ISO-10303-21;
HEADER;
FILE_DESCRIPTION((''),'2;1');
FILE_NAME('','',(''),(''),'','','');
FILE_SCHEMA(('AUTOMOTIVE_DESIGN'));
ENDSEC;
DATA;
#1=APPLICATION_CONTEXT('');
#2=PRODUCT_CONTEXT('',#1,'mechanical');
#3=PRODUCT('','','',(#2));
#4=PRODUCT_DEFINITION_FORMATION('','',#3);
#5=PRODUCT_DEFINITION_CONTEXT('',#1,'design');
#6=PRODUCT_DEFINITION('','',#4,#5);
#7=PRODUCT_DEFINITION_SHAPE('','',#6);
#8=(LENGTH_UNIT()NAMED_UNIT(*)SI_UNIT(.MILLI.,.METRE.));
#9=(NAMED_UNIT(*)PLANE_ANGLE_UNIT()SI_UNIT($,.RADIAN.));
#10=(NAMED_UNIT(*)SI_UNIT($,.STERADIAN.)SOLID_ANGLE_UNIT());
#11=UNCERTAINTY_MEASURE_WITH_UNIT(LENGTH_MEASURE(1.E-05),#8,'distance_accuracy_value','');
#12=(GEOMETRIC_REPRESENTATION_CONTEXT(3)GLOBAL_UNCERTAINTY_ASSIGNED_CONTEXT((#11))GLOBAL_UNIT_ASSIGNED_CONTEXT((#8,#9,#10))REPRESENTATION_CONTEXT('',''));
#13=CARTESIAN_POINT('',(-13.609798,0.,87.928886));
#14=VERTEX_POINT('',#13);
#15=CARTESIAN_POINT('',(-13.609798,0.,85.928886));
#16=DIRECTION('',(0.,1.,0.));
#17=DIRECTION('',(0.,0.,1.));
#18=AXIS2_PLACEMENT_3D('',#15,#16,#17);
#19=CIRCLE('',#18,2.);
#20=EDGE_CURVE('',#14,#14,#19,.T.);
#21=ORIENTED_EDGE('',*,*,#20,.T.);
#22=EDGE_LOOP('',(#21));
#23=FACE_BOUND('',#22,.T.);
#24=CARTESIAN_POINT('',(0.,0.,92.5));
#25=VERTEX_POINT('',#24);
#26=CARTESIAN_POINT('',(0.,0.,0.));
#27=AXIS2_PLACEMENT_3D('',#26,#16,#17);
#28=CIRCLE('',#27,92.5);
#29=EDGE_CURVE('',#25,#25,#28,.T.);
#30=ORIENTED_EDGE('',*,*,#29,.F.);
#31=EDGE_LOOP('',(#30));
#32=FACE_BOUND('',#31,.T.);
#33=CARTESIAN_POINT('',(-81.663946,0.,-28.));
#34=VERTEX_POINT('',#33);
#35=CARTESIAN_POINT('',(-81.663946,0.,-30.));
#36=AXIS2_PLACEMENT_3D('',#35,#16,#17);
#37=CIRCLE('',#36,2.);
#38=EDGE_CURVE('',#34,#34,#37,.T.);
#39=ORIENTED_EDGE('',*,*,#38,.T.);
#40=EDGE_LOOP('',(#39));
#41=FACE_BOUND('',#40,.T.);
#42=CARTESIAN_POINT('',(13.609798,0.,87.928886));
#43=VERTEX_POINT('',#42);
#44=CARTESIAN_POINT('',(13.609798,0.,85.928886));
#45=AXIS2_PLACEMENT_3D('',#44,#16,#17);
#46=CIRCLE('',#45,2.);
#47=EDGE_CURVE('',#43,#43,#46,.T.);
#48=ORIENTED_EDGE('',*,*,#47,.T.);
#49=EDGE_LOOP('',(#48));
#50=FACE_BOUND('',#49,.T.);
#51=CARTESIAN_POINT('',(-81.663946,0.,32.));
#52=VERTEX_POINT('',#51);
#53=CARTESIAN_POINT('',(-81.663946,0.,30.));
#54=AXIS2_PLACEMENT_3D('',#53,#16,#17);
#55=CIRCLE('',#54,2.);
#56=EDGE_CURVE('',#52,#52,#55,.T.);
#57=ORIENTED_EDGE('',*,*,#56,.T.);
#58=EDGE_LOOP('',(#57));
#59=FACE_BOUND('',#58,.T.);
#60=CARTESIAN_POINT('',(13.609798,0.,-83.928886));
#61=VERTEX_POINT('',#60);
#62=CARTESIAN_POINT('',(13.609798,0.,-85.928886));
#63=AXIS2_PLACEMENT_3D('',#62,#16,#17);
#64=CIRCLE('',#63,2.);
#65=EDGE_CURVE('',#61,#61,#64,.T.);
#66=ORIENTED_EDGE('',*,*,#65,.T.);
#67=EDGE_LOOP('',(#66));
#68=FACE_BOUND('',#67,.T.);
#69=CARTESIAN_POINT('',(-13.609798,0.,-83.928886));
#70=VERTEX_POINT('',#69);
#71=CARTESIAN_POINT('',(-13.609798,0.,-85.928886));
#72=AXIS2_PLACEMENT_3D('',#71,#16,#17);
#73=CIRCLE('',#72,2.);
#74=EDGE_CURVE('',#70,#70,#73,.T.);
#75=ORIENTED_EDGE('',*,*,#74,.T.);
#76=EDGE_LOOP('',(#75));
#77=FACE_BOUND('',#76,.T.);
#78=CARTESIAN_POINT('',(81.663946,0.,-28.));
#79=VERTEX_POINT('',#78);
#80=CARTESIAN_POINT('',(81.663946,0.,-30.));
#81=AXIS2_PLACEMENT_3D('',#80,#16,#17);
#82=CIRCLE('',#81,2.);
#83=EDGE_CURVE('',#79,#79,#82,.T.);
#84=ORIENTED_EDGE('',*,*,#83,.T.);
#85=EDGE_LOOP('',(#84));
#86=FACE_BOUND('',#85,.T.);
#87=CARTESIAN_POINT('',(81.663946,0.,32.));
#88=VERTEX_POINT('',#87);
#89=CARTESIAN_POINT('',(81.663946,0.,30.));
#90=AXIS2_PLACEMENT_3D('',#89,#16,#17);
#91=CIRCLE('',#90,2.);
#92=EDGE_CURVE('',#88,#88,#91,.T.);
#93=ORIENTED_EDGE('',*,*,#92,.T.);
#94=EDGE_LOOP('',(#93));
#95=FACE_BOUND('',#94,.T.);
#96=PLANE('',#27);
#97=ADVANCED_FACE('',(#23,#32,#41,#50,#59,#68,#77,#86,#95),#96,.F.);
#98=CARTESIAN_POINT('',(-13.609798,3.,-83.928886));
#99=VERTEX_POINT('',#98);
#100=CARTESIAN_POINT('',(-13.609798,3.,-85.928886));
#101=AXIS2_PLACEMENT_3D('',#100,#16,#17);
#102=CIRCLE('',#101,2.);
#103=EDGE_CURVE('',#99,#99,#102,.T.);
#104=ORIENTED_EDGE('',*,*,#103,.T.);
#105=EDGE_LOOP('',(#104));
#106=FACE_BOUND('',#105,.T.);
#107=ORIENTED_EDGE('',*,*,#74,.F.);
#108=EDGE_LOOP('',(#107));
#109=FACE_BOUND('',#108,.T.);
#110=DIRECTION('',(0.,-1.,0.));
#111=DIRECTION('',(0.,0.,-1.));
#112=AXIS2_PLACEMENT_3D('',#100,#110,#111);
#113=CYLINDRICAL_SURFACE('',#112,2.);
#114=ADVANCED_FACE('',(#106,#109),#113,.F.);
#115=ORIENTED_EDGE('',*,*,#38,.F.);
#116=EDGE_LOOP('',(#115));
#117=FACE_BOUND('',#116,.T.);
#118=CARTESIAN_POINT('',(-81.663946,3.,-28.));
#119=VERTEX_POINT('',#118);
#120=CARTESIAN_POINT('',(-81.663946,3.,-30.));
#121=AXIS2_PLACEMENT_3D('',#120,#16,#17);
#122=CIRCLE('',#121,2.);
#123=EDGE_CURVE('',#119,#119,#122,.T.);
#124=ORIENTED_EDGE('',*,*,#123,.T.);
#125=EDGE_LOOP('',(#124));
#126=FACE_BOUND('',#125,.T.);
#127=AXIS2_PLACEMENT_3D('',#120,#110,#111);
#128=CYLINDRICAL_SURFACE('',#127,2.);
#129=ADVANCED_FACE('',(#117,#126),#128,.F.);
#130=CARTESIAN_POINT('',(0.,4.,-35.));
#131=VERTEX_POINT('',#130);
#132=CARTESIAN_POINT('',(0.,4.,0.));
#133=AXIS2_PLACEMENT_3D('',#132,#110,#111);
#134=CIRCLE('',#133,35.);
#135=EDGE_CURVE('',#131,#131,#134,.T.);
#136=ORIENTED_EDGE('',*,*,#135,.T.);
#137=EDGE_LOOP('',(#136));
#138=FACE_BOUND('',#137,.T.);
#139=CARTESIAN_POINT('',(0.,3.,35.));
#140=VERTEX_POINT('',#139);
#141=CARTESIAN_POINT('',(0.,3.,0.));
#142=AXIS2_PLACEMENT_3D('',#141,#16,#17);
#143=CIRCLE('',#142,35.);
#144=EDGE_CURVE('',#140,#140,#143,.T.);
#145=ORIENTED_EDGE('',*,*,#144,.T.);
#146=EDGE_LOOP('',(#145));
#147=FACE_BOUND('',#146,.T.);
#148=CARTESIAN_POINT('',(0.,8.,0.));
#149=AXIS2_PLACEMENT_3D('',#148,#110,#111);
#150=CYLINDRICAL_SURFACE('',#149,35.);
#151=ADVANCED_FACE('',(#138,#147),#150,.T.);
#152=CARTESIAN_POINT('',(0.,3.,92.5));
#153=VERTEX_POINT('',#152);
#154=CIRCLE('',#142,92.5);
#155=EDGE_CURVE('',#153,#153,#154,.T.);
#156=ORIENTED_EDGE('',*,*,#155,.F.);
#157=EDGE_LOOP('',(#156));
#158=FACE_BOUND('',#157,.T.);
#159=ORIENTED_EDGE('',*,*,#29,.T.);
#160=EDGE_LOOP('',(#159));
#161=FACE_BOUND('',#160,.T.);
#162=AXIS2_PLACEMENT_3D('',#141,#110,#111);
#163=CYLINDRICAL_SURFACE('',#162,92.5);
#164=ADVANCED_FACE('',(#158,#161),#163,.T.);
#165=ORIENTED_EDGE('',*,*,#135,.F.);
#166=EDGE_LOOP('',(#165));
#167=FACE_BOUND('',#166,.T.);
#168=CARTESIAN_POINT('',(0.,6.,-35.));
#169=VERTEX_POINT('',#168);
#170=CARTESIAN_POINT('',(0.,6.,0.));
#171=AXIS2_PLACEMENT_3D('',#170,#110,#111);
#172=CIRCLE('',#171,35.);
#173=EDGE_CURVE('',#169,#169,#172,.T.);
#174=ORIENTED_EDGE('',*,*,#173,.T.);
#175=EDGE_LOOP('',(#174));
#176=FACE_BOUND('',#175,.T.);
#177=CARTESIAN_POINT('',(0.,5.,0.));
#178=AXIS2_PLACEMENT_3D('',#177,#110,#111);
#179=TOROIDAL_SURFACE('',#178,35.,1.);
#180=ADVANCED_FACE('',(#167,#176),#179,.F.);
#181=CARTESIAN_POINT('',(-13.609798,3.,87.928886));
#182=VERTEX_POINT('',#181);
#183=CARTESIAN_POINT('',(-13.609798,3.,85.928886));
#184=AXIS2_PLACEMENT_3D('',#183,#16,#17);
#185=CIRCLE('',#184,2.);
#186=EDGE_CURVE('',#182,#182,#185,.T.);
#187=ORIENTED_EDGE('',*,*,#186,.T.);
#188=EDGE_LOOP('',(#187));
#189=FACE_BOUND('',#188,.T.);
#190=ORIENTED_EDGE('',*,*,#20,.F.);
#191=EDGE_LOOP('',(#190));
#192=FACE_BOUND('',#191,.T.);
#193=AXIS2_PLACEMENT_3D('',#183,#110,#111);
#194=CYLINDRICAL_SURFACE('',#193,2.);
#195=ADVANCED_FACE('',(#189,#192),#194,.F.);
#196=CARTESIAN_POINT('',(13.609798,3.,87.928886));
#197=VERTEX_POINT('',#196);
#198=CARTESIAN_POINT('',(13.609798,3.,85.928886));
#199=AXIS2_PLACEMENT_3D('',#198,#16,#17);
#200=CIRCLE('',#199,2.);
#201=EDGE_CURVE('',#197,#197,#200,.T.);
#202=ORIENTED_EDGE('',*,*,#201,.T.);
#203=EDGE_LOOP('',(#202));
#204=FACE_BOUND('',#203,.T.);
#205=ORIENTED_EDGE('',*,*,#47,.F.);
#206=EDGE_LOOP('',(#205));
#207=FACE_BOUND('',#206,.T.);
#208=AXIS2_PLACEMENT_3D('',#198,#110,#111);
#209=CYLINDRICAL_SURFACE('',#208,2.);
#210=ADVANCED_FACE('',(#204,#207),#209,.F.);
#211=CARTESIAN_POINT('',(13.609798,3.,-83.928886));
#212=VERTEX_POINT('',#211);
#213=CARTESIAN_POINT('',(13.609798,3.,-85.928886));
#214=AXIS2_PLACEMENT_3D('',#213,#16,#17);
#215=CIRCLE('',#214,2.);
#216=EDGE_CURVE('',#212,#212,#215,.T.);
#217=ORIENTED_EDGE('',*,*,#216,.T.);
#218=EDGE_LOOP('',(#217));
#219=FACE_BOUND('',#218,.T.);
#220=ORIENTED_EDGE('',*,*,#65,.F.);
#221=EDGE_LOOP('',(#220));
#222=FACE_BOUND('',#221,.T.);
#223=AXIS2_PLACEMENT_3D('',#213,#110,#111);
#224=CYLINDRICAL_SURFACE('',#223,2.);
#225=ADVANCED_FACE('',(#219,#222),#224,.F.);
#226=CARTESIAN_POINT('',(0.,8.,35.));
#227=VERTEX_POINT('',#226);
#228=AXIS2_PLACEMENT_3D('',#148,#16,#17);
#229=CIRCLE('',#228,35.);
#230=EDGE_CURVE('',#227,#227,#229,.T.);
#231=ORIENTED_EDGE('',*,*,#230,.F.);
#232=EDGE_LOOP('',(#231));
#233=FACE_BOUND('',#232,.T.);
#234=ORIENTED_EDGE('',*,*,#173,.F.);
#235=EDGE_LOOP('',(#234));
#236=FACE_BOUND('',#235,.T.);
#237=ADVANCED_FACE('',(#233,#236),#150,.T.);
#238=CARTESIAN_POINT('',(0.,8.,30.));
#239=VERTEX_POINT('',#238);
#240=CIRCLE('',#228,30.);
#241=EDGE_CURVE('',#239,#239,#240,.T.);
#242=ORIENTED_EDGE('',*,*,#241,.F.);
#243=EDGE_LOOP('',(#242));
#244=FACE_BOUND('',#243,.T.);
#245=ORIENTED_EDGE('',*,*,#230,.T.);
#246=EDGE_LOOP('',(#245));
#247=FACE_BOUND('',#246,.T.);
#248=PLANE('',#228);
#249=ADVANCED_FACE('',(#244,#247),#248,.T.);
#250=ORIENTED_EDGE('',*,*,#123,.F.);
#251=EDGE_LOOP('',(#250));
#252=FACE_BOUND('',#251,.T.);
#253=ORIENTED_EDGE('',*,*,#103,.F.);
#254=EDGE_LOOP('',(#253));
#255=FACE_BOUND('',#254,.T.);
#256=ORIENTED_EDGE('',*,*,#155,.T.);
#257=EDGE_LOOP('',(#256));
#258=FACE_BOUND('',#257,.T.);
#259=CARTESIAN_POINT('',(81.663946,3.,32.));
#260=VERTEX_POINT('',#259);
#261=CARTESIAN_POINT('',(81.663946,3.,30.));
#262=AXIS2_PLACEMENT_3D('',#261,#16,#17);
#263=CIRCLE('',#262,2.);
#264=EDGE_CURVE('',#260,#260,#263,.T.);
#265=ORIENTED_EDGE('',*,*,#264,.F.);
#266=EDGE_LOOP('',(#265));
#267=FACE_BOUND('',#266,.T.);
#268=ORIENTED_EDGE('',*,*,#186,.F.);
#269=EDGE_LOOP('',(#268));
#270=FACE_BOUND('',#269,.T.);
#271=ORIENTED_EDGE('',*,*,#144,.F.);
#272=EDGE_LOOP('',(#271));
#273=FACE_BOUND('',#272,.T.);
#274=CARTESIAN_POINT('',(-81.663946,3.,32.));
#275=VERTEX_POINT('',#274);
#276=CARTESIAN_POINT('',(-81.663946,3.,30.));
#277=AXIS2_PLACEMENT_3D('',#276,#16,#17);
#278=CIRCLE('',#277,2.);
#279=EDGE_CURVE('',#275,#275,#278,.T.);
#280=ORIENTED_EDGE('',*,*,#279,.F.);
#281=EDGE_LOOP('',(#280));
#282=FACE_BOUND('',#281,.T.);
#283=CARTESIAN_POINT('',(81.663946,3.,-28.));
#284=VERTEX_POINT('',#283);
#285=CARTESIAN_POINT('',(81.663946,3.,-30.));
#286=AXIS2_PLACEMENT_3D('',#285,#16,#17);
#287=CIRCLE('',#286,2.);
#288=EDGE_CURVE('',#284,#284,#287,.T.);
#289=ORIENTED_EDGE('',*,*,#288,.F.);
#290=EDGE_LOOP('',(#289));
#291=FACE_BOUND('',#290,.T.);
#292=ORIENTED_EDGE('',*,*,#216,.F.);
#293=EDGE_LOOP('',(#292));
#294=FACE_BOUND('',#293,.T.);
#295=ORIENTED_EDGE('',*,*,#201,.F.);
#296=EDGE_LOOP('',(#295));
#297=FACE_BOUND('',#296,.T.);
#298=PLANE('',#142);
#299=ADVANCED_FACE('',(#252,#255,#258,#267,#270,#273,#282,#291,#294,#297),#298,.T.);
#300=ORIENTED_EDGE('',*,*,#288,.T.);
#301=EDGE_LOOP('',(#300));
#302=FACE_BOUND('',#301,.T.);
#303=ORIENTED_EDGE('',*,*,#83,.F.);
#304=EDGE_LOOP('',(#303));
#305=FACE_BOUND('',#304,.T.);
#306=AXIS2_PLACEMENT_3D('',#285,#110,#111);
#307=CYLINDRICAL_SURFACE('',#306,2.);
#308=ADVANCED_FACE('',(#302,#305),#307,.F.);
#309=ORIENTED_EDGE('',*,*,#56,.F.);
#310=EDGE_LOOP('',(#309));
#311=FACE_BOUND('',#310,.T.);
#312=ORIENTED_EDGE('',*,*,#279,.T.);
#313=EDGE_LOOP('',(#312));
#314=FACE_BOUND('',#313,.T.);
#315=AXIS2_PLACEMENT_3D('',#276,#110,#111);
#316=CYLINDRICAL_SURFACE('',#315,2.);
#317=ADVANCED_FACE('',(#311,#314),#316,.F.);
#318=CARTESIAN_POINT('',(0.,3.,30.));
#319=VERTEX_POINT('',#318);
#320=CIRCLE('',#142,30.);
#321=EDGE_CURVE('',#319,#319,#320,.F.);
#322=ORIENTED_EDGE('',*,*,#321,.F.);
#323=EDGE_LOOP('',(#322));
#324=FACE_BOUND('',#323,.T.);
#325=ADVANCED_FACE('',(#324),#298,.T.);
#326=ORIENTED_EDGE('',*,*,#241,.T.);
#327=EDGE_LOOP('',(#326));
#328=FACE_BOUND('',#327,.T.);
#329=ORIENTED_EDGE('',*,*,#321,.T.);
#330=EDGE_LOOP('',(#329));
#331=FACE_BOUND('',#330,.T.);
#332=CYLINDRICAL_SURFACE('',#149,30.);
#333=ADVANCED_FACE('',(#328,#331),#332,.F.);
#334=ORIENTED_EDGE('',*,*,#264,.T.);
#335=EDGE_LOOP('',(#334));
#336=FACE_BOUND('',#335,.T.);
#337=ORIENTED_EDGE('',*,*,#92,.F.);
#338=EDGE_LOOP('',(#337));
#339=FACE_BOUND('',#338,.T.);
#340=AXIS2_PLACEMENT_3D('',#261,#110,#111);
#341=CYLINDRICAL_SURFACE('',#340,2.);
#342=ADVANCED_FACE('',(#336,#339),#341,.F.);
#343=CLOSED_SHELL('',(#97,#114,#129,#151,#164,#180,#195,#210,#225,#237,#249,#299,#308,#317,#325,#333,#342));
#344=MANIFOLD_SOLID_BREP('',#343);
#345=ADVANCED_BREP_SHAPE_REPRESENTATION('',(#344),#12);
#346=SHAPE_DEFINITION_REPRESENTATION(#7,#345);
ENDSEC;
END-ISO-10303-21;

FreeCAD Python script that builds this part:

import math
import FreeCAD as App
import Part
import Sketcher
from FreeCAD import Vector
Q = App.Units.Quantity

doc = App.newDocument("Part")
body = doc.addObject("PartDesign::Body", "Body")

# Sketch on XZ plane
sketch1 = doc.addObject("Sketcher::SketchObject", "Sketch")
body.addObject(sketch1)
sketch1.AttachmentSupport = (doc.XZ_Plane, [""])
sketch1.MapMode = "FlatFace"
sketch1.addGeometry([
    Part.Circle(Vector(0, 0, 0), Vector(0, 0, 1), 92.5),  # 0
    Part.Circle(Vector(-81.7, -30, 0), Vector(0, 0, 1), 2),  # 1
    Part.Circle(Vector(-13.6, -85.9, 0), Vector(0, 0, 1), 2),  # 2
    Part.Circle(Vector(-81.7, 30, 0), Vector(0, 0, 1), 2),  # 3
    Part.Circle(Vector(-13.6, 85.9, 0), Vector(0, 0, 1), 2),  # 4
    Part.Circle(Vector(13.6, -85.9, 0), Vector(0, 0, 1), 2),  # 5
    Part.Circle(Vector(81.7, -30, 0), Vector(0, 0, 1), 2),  # 6
    Part.Circle(Vector(13.6, 85.9, 0), Vector(0, 0, 1), 2),  # 7
    Part.Circle(Vector(81.7, 30, 0), Vector(0, 0, 1), 2),  # 8
], False)
sketch1.addConstraint([
    Sketcher.Constraint("Coincident", 0, 3, -1, 1),
    Sketcher.Constraint("Equal", 1, 2),
    Sketcher.Constraint("Equal", 2, 3),
    Sketcher.Constraint("Equal", 3, 4),
    Sketcher.Constraint("Equal", 4, 5),
    Sketcher.Constraint("Equal", 5, 6),
    Sketcher.Constraint("Equal", 6, 7),
    Sketcher.Constraint("Equal", 7, 8),
    Sketcher.Constraint("Symmetric", 4, 3, 5, 3, -1, 1),
    Sketcher.Constraint("Symmetric", 3, 3, 6, 3, -1, 1),
    Sketcher.Constraint("Symmetric", 2, 3, 7, 3, -1, 1),
    Sketcher.Constraint("Symmetric", 1, 3, 8, 3, -1, 1),
    Sketcher.Constraint("Symmetric", 2, 3, 5, 3, -2),
    Sketcher.Constraint("Symmetric", 1, 3, 6, 3, -2),
    Sketcher.Constraint("Diameter", 0, Q("185 mm")),
    Sketcher.Constraint("Diameter", 1, Q("4 mm")),
    Sketcher.Constraint("DistanceY", 1, 3, -1, 1, Q("30 mm")),
    Sketcher.Constraint("DistanceX", 2, 3, -1, 1, Q("13.609798 mm")),
    Sketcher.Constraint("DistanceY", 2, 3, 4, 3, Q("171.857771 mm")),
    Sketcher.Constraint("DistanceX", 1, 3, 6, 3, Q("163.327891 mm")),
])
pad1 = doc.addObject("PartDesign::Pad", "Pad")
body.addObject(pad1)
pad1.Profile = sketch1
pad1.Length = 3
pad1.Reversed = True

# Sketch on XZ plane
sketch2 = doc.addObject("Sketcher::SketchObject", "Sketch001")
body.addObject(sketch2)
sketch2.AttachmentSupport = (doc.XZ_Plane, [""])
sketch2.MapMode = "FlatFace"
sketch2.AttachmentOffset = App.Placement(Vector(0, 0, -3), App.Rotation())
sketch2.addGeometry([
    Part.Circle(Vector(0, 0, 0), Vector(0, 0, 1), 35),
    Part.Circle(Vector(0, 0, 0), Vector(0, 0, 1), 30),
], False)
sketch2.addConstraint([
    Sketcher.Constraint("Coincident", 0, 3, -1, 1),
    Sketcher.Constraint("Coincident", 1, 3, -1, 1),
    Sketcher.Constraint("Diameter", 0, Q("70 mm")),
    Sketcher.Constraint("Diameter", 1, Q("60 mm")),
])
pad2 = doc.addObject("PartDesign::Pad", "Pad001")
body.addObject(pad2)
pad2.Profile = sketch2
pad2.Length = 5
pad2.Reversed = True

# Sketch on XY plane
sketch3 = doc.addObject("Sketcher::SketchObject", "Sketch002")
body.addObject(sketch3)
sketch3.AttachmentSupport = (doc.XY_Plane, [""])
sketch3.MapMode = "FlatFace"
sketch3.addGeometry([
    Part.LineSegment(Vector(35, 4, 0), Vector(35, 6, 0)),
    Part.ArcOfCircle(Part.Circle(Vector(35, 5, 0), Vector(0, 0, 1), 1), math.radians(90), math.radians(270)),
], False)
sketch3.addConstraint([
    Sketcher.Constraint("Coincident", 0, 1, 1, 2),
    Sketcher.Constraint("Coincident", 1, 1, 0, 2),
    Sketcher.Constraint("Vertical", 0),
    Sketcher.Constraint("Vertical", 1, 3, 0, 1),
    Sketcher.Constraint("Radius", 1, Q("1 mm")),
    Sketcher.Constraint("DistanceX", -1, 1, 1, 3, Q("35 mm")),
    Sketcher.Constraint("DistanceY", -1, 1, 1, 3, Q("5 mm")),
])
groove = doc.addObject("PartDesign::Groove", "Groove")
body.addObject(groove)
groove.Profile = sketch3
groove.ReferenceAxis = (sketch3, ["V_Axis"])
groove.Angle = 360

doc.recompute()
